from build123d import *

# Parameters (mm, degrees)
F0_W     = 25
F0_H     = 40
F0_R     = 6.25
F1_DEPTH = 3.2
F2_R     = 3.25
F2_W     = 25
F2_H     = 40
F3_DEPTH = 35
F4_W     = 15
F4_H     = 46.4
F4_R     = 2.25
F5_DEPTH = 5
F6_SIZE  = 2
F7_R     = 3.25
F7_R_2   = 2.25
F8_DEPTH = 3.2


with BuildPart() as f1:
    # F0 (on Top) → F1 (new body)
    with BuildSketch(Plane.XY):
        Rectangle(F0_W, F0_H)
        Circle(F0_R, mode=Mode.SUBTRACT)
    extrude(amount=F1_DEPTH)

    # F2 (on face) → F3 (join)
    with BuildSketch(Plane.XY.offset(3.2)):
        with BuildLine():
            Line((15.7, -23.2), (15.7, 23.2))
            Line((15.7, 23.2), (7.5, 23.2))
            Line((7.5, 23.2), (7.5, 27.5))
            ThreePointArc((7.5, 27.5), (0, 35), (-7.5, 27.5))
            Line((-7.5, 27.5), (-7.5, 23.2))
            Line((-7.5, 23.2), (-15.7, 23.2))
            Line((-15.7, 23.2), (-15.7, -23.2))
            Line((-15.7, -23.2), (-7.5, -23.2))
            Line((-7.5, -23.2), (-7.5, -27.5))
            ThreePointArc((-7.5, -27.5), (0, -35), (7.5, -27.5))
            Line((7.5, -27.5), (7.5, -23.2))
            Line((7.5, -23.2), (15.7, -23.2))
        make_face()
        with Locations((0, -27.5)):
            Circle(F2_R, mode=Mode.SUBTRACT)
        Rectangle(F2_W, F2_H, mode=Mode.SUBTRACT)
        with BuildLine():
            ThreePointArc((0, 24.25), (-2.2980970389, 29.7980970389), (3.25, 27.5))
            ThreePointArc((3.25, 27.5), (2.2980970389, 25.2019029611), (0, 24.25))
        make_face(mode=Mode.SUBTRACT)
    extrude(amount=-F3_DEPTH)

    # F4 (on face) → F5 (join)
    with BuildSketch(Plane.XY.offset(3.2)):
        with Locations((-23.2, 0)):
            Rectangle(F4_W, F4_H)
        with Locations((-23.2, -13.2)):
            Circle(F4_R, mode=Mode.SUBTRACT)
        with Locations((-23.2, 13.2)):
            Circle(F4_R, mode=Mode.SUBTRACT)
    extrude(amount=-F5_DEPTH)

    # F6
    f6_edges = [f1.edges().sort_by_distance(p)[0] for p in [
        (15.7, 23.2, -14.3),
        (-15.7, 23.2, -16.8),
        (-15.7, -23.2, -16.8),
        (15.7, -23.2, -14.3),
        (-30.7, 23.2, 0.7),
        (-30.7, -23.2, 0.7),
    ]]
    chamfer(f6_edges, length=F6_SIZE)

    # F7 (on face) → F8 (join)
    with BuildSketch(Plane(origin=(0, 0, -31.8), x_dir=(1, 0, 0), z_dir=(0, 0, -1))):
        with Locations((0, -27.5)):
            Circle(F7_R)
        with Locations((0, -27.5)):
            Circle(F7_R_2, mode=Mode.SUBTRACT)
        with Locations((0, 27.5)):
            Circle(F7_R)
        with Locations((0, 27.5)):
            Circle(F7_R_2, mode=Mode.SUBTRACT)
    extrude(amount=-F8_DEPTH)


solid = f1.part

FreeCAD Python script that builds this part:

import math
import FreeCAD as App
import Part
import Sketcher


def edges_at(feature, points):
    """Names of the edges that pass closest to the given points."""
    edges = feature.Shape.Edges
    near = lambda p: min(range(len(edges)), key=lambda i: edges[i].distToShape(Part.Vertex(*p))[0])
    return sorted({f"Edge{near(p) + 1}" for p in points})


def add_polygon(sketch, points):
    """Adds a closed chain of lines whose ends are joined by coincident constraints."""
    first, n = sketch.GeometryCount, len(points)
    for a, b in zip(points, points[1:] + points[:1]):
        sketch.addGeometry(Part.LineSegment(App.Vector(*a, 0), App.Vector(*b, 0)), False)
    for i in range(n):
        sketch.addConstraint(Sketcher.Constraint("Coincident", first + i, 2, first + (i + 1) % n, 1))

doc = App.newDocument("Part")
body = doc.addObject("PartDesign::Body", "Body")

# Sketch on XY plane
sketch1 = body.newObject("Sketcher::SketchObject", "Sketch")
sketch1.AttachmentSupport = (doc.getObject("XY_Plane"), [""])
sketch1.MapMode = "FlatFace"
add_polygon(sketch1, [(-12.5, 20), (-12.5, -20), (12.5, -20), (12.5, 20)])  # lines 0-3
sketch1.addGeometry(Part.Circle(App.Vector(0, 0, 0), App.Vector(0, 0, 1), 6.25), False)  # 4
sketch1.addConstraint(Sketcher.Constraint("Vertical", 0))
sketch1.addConstraint(Sketcher.Constraint("Horizontal", 1))
sketch1.addConstraint(Sketcher.Constraint("Vertical", 2))
sketch1.addConstraint(Sketcher.Constraint("Horizontal", 3))
sketch1.addConstraint(Sketcher.Constraint("Coincident", 4, 3, -1, 1))
sketch1.addConstraint(Sketcher.Constraint("Symmetric", 0, 2, 2, 2, -1, 1))
sketch1.addConstraint(Sketcher.Constraint("Diameter", 4, 12.5))
sketch1.addConstraint(Sketcher.Constraint("DistanceX", 1, 1, 1, 2, 25.0))
sketch1.addConstraint(Sketcher.Constraint("DistanceY", 0, 2, 0, 1, 40.0))
pad1 = body.newObject("PartDesign::Pad", "Pad")
pad1.Profile = sketch1
pad1.Length = 3.2

# Sketch on XY plane
sketch2 = body.newObject("Sketcher::SketchObject", "Sketch001")
sketch2.AttachmentSupport = (doc.getObject("XY_Plane"), [""])
sketch2.MapMode = "FlatFace"
sketch2.AttachmentOffset = App.Placement(App.Vector(0, 0, 3.2), App.Rotation())
sketch2.addGeometry(Part.LineSegment(App.Vector(15.7, -23.2, 0), App.Vector(15.7, 23.2, 0)), False)  # 0
sketch2.addGeometry(Part.LineSegment(App.Vector(15.7, 23.2, 0), App.Vector(7.5, 23.2, 0)), False)  # 1
sketch2.addGeometry(Part.LineSegment(App.Vector(7.5, 23.2, 0), App.Vector(7.5, 27.5, 0)), False)  # 2
sketch2.addGeometry(Part.ArcOfCircle(Part.Circle(App.Vector(0, 27.5, 0), App.Vector(0, 0, 1), 7.5), math.radians(0), math.radians(180)), False)  # 3
sketch2.addGeometry(Part.LineSegment(App.Vector(-7.5, 27.5, 0), App.Vector(-7.5, 23.2, 0)), False)  # 4
sketch2.addGeometry(Part.LineSegment(App.Vector(-7.5, 23.2, 0), App.Vector(-15.7, 23.2, 0)), False)  # 5
sketch2.addGeometry(Part.LineSegment(App.Vector(-15.7, 23.2, 0), App.Vector(-15.7, -23.2, 0)), False)  # 6
sketch2.addGeometry(Part.LineSegment(App.Vector(-15.7, -23.2, 0), App.Vector(-7.5, -23.2, 0)), False)  # 7
sketch2.addGeometry(Part.LineSegment(App.Vector(-7.5, -23.2, 0), App.Vector(-7.5, -27.5, 0)), False)  # 8
sketch2.addGeometry(Part.ArcOfCircle(Part.Circle(App.Vector(0, -27.5, 0), App.Vector(0, 0, 1), 7.5), math.radians(180), math.radians(360)), False)  # 9
sketch2.addGeometry(Part.LineSegment(App.Vector(7.5, -27.5, 0), App.Vector(7.5, -23.2, 0)), False)  # 10
sketch2.addGeometry(Part.LineSegment(App.Vector(7.5, -23.2, 0), App.Vector(15.7, -23.2, 0)), False)  # 11
sketch2.addGeometry(Part.Circle(App.Vector(0, -27.5, 0), App.Vector(0, 0, 1), 3.25), False)  # 12
add_polygon(sketch2, [(12.5, -20), (-12.5, -20), (-12.5, 20), (12.5, 20)])  # lines 13-16
sketch2.addGeometry(Part.ArcOfCircle(Part.Circle(App.Vector(0, 27.5, 0), App.Vector(0, 0, 1), 3.25), math.radians(-90), math.radians(0)), False)  # 17
sketch2.addGeometry(Part.ArcOfCircle(Part.Circle(App.Vector(0, 27.5, 0), App.Vector(0, 0, 1), 3.25), math.radians(0), math.radians(270)), False)  # 18
sketch2.addConstraint(Sketcher.Constraint("Coincident", 0, 2, 1, 1))
sketch2.addConstraint(Sketcher.Constraint("Coincident", 1, 2, 2, 1))
sketch2.addConstraint(Sketcher.Constraint("Tangent", 2, 2, 3, 1))
sketch2.addConstraint(Sketcher.Constraint("Tangent", 3, 2, 4, 1))
sketch2.addConstraint(Sketcher.Constraint("Coincident", 4, 2, 5, 1))
sketch2.addConstraint(Sketcher.Constraint("Coincident", 5, 2, 6, 1))
sketch2.addConstraint(Sketcher.Constraint("Coincident", 6, 2, 7, 1))
sketch2.addConstraint(Sketcher.Constraint("Coincident", 7, 2, 8, 1))
sketch2.addConstraint(Sketcher.Constraint("Tangent", 8, 2, 9, 1))
sketch2.addConstraint(Sketcher.Constraint("Tangent", 9, 2, 10, 1))
sketch2.addConstraint(Sketcher.Constraint("Coincident", 10, 2, 11, 1))
sketch2.addConstraint(Sketcher.Constraint("Coincident", 11, 2, 0, 1))
sketch2.addConstraint(Sketcher.Constraint("Tangent", 17, 1, 18, 2))
sketch2.addConstraint(Sketcher.Constraint("Coincident", 18, 1, 17, 2))
sketch2.addConstraint(Sketcher.Constraint("Vertical", 0))
sketch2.addConstraint(Sketcher.Constraint("Horizontal", 1))
sketch2.addConstraint(Sketcher.Constraint("Vertical", 2))
sketch2.addConstraint(Sketcher.Constraint("Vertical", 4))
sketch2.addConstraint(Sketcher.Constraint("Horizontal", 5))
sketch2.addConstraint(Sketcher.Constraint("Vertical", 6))
sketch2.addConstraint(Sketcher.Constraint("Horizontal", 7))
sketch2.addConstraint(Sketcher.Constraint("Vertical", 8))
sketch2.addConstraint(Sketcher.Constraint("Vertical", 10))
sketch2.addConstraint(Sketcher.Constraint("Horizontal", 11))
sketch2.addConstraint(Sketcher.Constraint("Horizontal", 13))
sketch2.addConstraint(Sketcher.Constraint("Vertical", 14))
sketch2.addConstraint(Sketcher.Constraint("Horizontal", 15))
sketch2.addConstraint(Sketcher.Constraint("Vertical", 16))
sketch2.addConstraint(Sketcher.Constraint("Coincident", 12, 3, 9, 3))
sketch2.addConstraint(Sketcher.Constraint("Coincident", 17, 3, 3, 3))
sketch2.addConstraint(Sketcher.Constraint("Equal", 3, 9))
sketch2.addConstraint(Sketcher.Constraint("Equal", 12, 17))
sketch2.addConstraint(Sketcher.Constraint("Symmetric", 3, 3, 9, 3, -1, 1))
sketch2.addConstraint(Sketcher.Constraint("Symmetric", 0, 2, 6, 2, -1, 1))
sketch2.addConstraint(Sketcher.Constraint("Symmetric", 13, 2, 15, 2, -1, 1))
sketch2.addConstraint(Sketcher.Constraint("Symmetric", 1, 2, 4, 2, -2))
sketch2.addConstraint(Sketcher.Constraint("PointOnObject", 17, 1, -2))
sketch2.addConstraint(Sketcher.Constraint("Horizontal", 7, 2, 10, 2))
sketch2.addConstraint(Sketcher.Constraint("Horizontal", 3, 2, 18, 1))
sketch2.addConstraint(Sketcher.Constraint("Diameter", 12, 6.5))
sketch2.addConstraint(Sketcher.Constraint("Radius", 3, 7.5))
sketch2.addConstraint(Sketcher.Constraint("DistanceX", 13, 2, 13, 1, 25.0))
sketch2.addConstraint(Sketcher.Constraint("DistanceY", 14, 1, 14, 2, 40.0))
sketch2.addConstraint(Sketcher.Constraint("DistanceX", 1, 2, 1, 1, 8.2))
sketch2.addConstraint(Sketcher.Constraint("DistanceY", 0, 1, 0, 2, 46.4))
sketch2.addConstraint(Sketcher.Constraint("DistanceY", 2, 1, 2, 2, 4.3))
pad2 = body.newObject("PartDesign::Pad", "Pad001")
pad2.Profile = sketch2
pad2.Length = 35
pad2.Reversed = True

# Sketch on XY plane
sketch3 = body.newObject("Sketcher::SketchObject", "Sketch002")
sketch3.AttachmentSupport = (doc.getObject("XY_Plane"), [""])
sketch3.MapMode = "FlatFace"
sketch3.AttachmentOffset = App.Placement(App.Vector(0, 0, 3.2), App.Rotation())
add_polygon(sketch3, [(-30.7, 23.2), (-30.7, -23.2), (-15.7, -23.2), (-15.7, 23.2)])  # lines 0-3
sketch3.addGeometry(Part.Circle(App.Vector(-23.2, -13.2, 0), App.Vector(0, 0, 1), 2.25), False)  # 4
sketch3.addGeometry(Part.Circle(App.Vector(-23.2, 13.2, 0), App.Vector(0, 0, 1), 2.25), False)  # 5
sketch3.addConstraint(Sketcher.Constraint("Vertical", 0))
sketch3.addConstraint(Sketcher.Constraint("Horizontal", 1))
sketch3.addConstraint(Sketcher.Constraint("Vertical", 2))
sketch3.addConstraint(Sketcher.Constraint("Horizontal", 3))
sketch3.addConstraint(Sketcher.Constraint("Equal", 4, 5))
sketch3.addConstraint(Sketcher.Constraint("Symmetric", 4, 3, 5, 3, -1))
sketch3.addConstraint(Sketcher.Constraint("Diameter", 4, 4.5))
sketch3.addConstraint(Sketcher.Constraint("DistanceX", 1, 1, 1, 2, 15.0))
sketch3.addConstraint(Sketcher.Constraint("DistanceY", 0, 2, 0, 1, 46.4))
sketch3.addConstraint(Sketcher.Constraint("DistanceY", 0, 2, 4, 3, 10.0))
sketch3.addConstraint(Sketcher.Constraint("DistanceY", 5, 3, 2, 2, 10.0))
sketch3.addConstraint(Sketcher.Constraint("DistanceX", 4, 3, -1, 1, 23.2))
sketch3.addConstraint(Sketcher.Constraint("DistanceX", 0, 2, -1, 1, 30.7))
pad3 = body.newObject("PartDesign::Pad", "Pad002")
pad3.Profile = sketch3
pad3.Length = 5
pad3.Reversed = True
doc.recompute()

chamfer = body.newObject("PartDesign::Chamfer", "Chamfer")
chamfer.Base = (pad3, edges_at(pad3, [
    (15.7, 23.2, -14.3),
    (-15.7, 23.2, -16.8),
    (-15.7, -23.2, -16.8),
    (15.7, -23.2, -14.3),
    (-30.7, 23.2, 0.7),
    (-30.7, -23.2, 0.7),
]))
chamfer.Size = 2

# Sketch on XY plane
sketch4 = body.newObject("Sketcher::SketchObject", "Sketch003")
sketch4.AttachmentSupport = (doc.getObject("XY_Plane"), [""])
sketch4.MapMode = "FlatFace"
sketch4.AttachmentOffset = App.Placement(App.Vector(0, 0, -31.8), App.Rotation())
sketch4.addGeometry(Part.Circle(App.Vector(0, 27.5, 0), App.Vector(0, 0, 1), 3.25), False)
sketch4.addGeometry(Part.Circle(App.Vector(0, 27.5, 0), App.Vector(0, 0, 1), 2.25), False)
sketch4.addGeometry(Part.Circle(App.Vector(0, -27.5, 0), App.Vector(0, 0, 1), 3.25), False)
sketch4.addGeometry(Part.Circle(App.Vector(0, -27.5, 0), App.Vector(0, 0, 1), 2.25), False)
sketch4.addConstraint(Sketcher.Constraint("Coincident", 1, 3, 0, 3))
sketch4.addConstraint(Sketcher.Constraint("Coincident", 3, 3, 2, 3))
sketch4.addConstraint(Sketcher.Constraint("Equal", 0, 2))
sketch4.addConstraint(Sketcher.Constraint("Equal", 1, 3))
sketch4.addConstraint(Sketcher.Constraint("Symmetric", 0, 3, 2, 3, -1, 1))
sketch4.addConstraint(Sketcher.Constraint("PointOnObject", 0, 3, -2))
sketch4.addConstraint(Sketcher.Constraint("Diameter", 0, 6.5))
sketch4.addConstraint(Sketcher.Constraint("Diameter", 1, 4.5))
sketch4.addConstraint(Sketcher.Constraint("DistanceY", 2, 3, 0, 3, 55.0))
pad4 = body.newObject("PartDesign::Pad", "Pad003")
pad4.Profile = sketch4
pad4.Length = 3.2

doc.recompute()
